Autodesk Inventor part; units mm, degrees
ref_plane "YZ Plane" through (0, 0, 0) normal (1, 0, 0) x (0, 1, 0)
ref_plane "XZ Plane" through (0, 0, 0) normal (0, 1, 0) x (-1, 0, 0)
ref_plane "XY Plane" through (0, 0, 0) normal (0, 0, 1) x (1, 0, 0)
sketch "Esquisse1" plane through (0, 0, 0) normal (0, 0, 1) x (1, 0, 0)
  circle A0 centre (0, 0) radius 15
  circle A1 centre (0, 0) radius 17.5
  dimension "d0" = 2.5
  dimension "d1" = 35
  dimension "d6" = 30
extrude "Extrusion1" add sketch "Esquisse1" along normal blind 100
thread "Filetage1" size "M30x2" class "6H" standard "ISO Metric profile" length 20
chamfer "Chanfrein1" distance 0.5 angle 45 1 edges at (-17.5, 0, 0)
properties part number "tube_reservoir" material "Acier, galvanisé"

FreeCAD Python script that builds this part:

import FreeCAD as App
import Part
import Sketcher
Q = App.Units.Quantity


def edges_at(feature, points):
    """Names of the edges that pass closest to the given points."""
    edges = feature.Shape.Edges
    near = lambda p: min(range(len(edges)), key=lambda i: edges[i].distToShape(Part.Vertex(*p))[0])
    return sorted({f"Edge{near(p) + 1}" for p in points})

doc = App.newDocument("Part")
body = doc.addObject("PartDesign::Body", "Body")

sketch1 = doc.addObject("Sketcher::SketchObject", "Sketch")
body.addObject(sketch1)
sketch1.AttachmentSupport = (doc.XY_Plane, [""])
sketch1.MapMode = "FlatFace"
sketch1.addGeometry([
    Part.Circle(App.Vector(0, 0, 0), App.Vector(0, 0, 1), 18),
    Part.Circle(App.Vector(0, 0, 0), App.Vector(0, 0, 1), 15),
], False)
sketch1.addConstraint([
    Sketcher.Constraint("Coincident", 0, 3, -1, 1),
    Sketcher.Constraint("Coincident", 1, 3, -1, 1),
    Sketcher.Constraint("Diameter", 0, Q("35 mm")),
    Sketcher.Constraint("Diameter", 1, Q("30 mm")),
])
pad1 = doc.addObject("PartDesign::Pad", "Pad")
body.addObject(pad1)
pad1.Profile = sketch1
pad1.Length = 100
doc.recompute()

chamfer = doc.addObject("PartDesign::Chamfer", "Chamfer")
body.addObject(chamfer)
chamfer.Base = (pad1, edges_at(pad1, [(-17.5, 0, 0)]))
chamfer.Size = 0.5

doc.recompute()
